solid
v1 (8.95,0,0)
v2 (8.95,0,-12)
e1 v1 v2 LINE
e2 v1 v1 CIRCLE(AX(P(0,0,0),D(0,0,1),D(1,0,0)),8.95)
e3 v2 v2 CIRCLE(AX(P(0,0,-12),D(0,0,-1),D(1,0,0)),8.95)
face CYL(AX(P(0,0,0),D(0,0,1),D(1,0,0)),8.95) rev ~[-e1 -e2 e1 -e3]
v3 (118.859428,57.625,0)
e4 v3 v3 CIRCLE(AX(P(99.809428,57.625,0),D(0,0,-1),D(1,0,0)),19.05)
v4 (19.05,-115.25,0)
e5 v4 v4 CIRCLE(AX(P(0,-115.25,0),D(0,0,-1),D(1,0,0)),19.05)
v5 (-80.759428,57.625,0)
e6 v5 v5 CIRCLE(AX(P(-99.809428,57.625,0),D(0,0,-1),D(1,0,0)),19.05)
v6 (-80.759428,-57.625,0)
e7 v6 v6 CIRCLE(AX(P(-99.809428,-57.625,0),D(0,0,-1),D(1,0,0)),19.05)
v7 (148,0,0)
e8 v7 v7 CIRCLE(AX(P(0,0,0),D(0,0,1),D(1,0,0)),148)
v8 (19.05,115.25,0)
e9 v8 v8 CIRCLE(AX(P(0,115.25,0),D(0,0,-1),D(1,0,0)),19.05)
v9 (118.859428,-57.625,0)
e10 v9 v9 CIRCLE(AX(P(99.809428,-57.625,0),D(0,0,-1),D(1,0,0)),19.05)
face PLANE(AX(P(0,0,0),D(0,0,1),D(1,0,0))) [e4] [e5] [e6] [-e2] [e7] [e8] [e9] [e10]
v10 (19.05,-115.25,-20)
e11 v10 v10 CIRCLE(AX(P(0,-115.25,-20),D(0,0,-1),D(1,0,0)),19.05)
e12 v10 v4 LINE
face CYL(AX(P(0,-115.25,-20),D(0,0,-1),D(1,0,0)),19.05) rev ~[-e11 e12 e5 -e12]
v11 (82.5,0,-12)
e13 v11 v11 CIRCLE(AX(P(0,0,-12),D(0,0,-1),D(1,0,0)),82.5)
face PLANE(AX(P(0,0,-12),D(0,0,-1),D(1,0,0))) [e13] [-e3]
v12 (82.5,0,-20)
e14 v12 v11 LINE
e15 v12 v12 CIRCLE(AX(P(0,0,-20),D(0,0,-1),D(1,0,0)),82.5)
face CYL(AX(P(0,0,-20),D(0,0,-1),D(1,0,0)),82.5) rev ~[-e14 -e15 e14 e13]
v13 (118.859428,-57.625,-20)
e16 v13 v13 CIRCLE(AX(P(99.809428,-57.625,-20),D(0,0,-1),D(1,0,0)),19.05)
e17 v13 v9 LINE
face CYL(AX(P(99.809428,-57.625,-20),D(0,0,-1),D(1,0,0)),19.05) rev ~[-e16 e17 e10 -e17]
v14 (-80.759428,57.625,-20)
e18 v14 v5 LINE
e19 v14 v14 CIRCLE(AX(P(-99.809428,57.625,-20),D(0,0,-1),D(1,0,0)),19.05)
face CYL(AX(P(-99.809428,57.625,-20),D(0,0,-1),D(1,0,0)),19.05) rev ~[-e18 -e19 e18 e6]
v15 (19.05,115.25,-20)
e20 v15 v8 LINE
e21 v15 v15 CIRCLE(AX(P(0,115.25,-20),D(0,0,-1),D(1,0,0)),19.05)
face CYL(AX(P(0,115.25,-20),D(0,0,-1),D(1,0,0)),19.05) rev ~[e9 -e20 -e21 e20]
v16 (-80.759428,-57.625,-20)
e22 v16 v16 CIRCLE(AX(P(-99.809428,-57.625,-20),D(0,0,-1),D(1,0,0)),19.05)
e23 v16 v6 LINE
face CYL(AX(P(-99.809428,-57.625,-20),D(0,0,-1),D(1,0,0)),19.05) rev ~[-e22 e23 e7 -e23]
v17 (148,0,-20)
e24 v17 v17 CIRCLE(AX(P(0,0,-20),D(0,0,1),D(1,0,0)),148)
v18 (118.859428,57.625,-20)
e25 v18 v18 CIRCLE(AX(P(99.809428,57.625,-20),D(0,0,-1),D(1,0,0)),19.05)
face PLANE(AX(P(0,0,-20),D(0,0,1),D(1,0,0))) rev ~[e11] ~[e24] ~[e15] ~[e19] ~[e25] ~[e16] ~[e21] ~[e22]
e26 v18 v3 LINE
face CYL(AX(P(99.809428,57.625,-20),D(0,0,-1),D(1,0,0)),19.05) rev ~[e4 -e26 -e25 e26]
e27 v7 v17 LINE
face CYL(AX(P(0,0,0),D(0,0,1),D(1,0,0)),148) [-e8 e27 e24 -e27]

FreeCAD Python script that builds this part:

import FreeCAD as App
import Part
import Sketcher
Q = App.Units.Quantity

doc = App.newDocument("Part")
body = doc.addObject("PartDesign::Body", "Body")

sketch1 = body.newObject("Sketcher::SketchObject", "Sketch")
sketch1.AttachmentSupport = (doc.getObject("XY_Plane"), [""])
sketch1.MapMode = "FlatFace"
sketch1.addGeometry(Part.Circle(App.Vector(0, 0, 0), App.Vector(0, 0, 1), 148), False)
sketch1.addGeometry(Part.Circle(App.Vector(0, 0, 0), App.Vector(0, 0, 1), 8.95), False)
sketch1.addConstraint(Sketcher.Constraint("Coincident", 0, 3, -1, 1))
sketch1.addConstraint(Sketcher.Constraint("Coincident", 1, 3, -1, 1))
sketch1.addConstraint(Sketcher.Constraint("Diameter", 0, Q("296 mm")))
sketch1.addConstraint(Sketcher.Constraint("Diameter", 1, Q("17.9 mm")))
pad1 = body.newObject("PartDesign::Pad", "Pad")
pad1.Profile = sketch1
pad1.Length = 20
pad1.Reversed = True

sketch2 = body.newObject("Sketcher::SketchObject", "Sketch001")
sketch2.AttachmentSupport = (doc.getObject("XY_Plane"), [""])
sketch2.MapMode = "FlatFace"
sketch2.AttachmentOffset = App.Placement(App.Vector(0, 0, -20), App.Rotation())
sketch2.addGeometry(Part.Circle(App.Vector(0, 0, 0), App.Vector(0, 0, 1), 82.5), False)
sketch2.addGeometry(Part.Circle(App.Vector(0, 0, 0), App.Vector(0, 0, 1), 8.95), False)
sketch2.addConstraint(Sketcher.Constraint("Coincident", 0, 3, -1, 1))
sketch2.addConstraint(Sketcher.Constraint("Coincident", 1, 3, -1, 1))
sketch2.addConstraint(Sketcher.Constraint("Diameter", 0, Q("165 mm")))
sketch2.addConstraint(Sketcher.Constraint("Diameter", 1, Q("17.9 mm")))
pocket1 = body.newObject("PartDesign::Pocket", "Pocket")
pocket1.Profile = sketch2
pocket1.Length = 8
pocket1.Reversed = True

sketch3 = body.newObject("Sketcher::SketchObject", "Sketch002")
sketch3.AttachmentSupport = (doc.getObject("XY_Plane"), [""])
sketch3.MapMode = "FlatFace"
sketch3.AttachmentOffset = App.Placement(App.Vector(0, 0, -20), App.Rotation())
sketch3.addGeometry(Part.Circle(App.Vector(-99.809428, -57.625, 0), App.Vector(0, 0, 1), 19.05), False)
sketch3.addGeometry(Part.Circle(App.Vector(-99.809428, 57.625, 0), App.Vector(0, 0, 1), 19.05), False)
sketch3.addGeometry(Part.Circle(App.Vector(0, 115.25, 0), App.Vector(0, 0, 1), 19.05), False)
sketch3.addGeometry(Part.Circle(App.Vector(99.809428, 57.625, 0), App.Vector(0, 0, 1), 19.05), False)
sketch3.addGeometry(Part.Circle(App.Vector(99.809428, -57.625, 0), App.Vector(0, 0, 1), 19.05), False)
sketch3.addGeometry(Part.Circle(App.Vector(0, -115.25, 0), App.Vector(0, 0, 1), 19.05), False)
sketch3.addConstraint(Sketcher.Constraint("Equal", 0, 1))
sketch3.addConstraint(Sketcher.Constraint("Equal", 1, 2))
sketch3.addConstraint(Sketcher.Constraint("Equal", 2, 3))
sketch3.addConstraint(Sketcher.Constraint("Equal", 3, 4))
sketch3.addConstraint(Sketcher.Constraint("Equal", 4, 5))
sketch3.addConstraint(Sketcher.Constraint("Symmetric", 0, 3, 3, 3, -1, 1))
sketch3.addConstraint(Sketcher.Constraint("Symmetric", 1, 3, 4, 3, -1, 1))
sketch3.addConstraint(Sketcher.Constraint("Symmetric", 2, 3, 5, 3, -1, 1))
sketch3.addConstraint(Sketcher.Constraint("Symmetric", 1, 3, 3, 3, -2))
sketch3.addConstraint(Sketcher.Constraint("PointOnObject", 2, 3, -2))
sketch3.addConstraint(Sketcher.Constraint("Diameter", 0, Q("38.1 mm")))
sketch3.addConstraint(Sketcher.Constraint("DistanceY", 5, 3, 2, 3, Q("230.5 mm")))
sketch3.addConstraint(Sketcher.Constraint("DistanceY", 0, 3, 1, 3, Q("115.25 mm")))
sketch3.addConstraint(Sketcher.Constraint("DistanceX", 0, 3, -1, 1, Q("99.809428 mm")))
pocket2 = body.newObject("PartDesign::Pocket", "Pocket001")
pocket2.Profile = sketch3
pocket2.Type = "ThroughAll"
pocket2.Reversed = True
body2 = doc.addObject("PartDesign::Body", "Body001")
doc.recompute()

body2.BaseFeature = body
doc.recompute()
body.Visibility = False

doc.recompute()
